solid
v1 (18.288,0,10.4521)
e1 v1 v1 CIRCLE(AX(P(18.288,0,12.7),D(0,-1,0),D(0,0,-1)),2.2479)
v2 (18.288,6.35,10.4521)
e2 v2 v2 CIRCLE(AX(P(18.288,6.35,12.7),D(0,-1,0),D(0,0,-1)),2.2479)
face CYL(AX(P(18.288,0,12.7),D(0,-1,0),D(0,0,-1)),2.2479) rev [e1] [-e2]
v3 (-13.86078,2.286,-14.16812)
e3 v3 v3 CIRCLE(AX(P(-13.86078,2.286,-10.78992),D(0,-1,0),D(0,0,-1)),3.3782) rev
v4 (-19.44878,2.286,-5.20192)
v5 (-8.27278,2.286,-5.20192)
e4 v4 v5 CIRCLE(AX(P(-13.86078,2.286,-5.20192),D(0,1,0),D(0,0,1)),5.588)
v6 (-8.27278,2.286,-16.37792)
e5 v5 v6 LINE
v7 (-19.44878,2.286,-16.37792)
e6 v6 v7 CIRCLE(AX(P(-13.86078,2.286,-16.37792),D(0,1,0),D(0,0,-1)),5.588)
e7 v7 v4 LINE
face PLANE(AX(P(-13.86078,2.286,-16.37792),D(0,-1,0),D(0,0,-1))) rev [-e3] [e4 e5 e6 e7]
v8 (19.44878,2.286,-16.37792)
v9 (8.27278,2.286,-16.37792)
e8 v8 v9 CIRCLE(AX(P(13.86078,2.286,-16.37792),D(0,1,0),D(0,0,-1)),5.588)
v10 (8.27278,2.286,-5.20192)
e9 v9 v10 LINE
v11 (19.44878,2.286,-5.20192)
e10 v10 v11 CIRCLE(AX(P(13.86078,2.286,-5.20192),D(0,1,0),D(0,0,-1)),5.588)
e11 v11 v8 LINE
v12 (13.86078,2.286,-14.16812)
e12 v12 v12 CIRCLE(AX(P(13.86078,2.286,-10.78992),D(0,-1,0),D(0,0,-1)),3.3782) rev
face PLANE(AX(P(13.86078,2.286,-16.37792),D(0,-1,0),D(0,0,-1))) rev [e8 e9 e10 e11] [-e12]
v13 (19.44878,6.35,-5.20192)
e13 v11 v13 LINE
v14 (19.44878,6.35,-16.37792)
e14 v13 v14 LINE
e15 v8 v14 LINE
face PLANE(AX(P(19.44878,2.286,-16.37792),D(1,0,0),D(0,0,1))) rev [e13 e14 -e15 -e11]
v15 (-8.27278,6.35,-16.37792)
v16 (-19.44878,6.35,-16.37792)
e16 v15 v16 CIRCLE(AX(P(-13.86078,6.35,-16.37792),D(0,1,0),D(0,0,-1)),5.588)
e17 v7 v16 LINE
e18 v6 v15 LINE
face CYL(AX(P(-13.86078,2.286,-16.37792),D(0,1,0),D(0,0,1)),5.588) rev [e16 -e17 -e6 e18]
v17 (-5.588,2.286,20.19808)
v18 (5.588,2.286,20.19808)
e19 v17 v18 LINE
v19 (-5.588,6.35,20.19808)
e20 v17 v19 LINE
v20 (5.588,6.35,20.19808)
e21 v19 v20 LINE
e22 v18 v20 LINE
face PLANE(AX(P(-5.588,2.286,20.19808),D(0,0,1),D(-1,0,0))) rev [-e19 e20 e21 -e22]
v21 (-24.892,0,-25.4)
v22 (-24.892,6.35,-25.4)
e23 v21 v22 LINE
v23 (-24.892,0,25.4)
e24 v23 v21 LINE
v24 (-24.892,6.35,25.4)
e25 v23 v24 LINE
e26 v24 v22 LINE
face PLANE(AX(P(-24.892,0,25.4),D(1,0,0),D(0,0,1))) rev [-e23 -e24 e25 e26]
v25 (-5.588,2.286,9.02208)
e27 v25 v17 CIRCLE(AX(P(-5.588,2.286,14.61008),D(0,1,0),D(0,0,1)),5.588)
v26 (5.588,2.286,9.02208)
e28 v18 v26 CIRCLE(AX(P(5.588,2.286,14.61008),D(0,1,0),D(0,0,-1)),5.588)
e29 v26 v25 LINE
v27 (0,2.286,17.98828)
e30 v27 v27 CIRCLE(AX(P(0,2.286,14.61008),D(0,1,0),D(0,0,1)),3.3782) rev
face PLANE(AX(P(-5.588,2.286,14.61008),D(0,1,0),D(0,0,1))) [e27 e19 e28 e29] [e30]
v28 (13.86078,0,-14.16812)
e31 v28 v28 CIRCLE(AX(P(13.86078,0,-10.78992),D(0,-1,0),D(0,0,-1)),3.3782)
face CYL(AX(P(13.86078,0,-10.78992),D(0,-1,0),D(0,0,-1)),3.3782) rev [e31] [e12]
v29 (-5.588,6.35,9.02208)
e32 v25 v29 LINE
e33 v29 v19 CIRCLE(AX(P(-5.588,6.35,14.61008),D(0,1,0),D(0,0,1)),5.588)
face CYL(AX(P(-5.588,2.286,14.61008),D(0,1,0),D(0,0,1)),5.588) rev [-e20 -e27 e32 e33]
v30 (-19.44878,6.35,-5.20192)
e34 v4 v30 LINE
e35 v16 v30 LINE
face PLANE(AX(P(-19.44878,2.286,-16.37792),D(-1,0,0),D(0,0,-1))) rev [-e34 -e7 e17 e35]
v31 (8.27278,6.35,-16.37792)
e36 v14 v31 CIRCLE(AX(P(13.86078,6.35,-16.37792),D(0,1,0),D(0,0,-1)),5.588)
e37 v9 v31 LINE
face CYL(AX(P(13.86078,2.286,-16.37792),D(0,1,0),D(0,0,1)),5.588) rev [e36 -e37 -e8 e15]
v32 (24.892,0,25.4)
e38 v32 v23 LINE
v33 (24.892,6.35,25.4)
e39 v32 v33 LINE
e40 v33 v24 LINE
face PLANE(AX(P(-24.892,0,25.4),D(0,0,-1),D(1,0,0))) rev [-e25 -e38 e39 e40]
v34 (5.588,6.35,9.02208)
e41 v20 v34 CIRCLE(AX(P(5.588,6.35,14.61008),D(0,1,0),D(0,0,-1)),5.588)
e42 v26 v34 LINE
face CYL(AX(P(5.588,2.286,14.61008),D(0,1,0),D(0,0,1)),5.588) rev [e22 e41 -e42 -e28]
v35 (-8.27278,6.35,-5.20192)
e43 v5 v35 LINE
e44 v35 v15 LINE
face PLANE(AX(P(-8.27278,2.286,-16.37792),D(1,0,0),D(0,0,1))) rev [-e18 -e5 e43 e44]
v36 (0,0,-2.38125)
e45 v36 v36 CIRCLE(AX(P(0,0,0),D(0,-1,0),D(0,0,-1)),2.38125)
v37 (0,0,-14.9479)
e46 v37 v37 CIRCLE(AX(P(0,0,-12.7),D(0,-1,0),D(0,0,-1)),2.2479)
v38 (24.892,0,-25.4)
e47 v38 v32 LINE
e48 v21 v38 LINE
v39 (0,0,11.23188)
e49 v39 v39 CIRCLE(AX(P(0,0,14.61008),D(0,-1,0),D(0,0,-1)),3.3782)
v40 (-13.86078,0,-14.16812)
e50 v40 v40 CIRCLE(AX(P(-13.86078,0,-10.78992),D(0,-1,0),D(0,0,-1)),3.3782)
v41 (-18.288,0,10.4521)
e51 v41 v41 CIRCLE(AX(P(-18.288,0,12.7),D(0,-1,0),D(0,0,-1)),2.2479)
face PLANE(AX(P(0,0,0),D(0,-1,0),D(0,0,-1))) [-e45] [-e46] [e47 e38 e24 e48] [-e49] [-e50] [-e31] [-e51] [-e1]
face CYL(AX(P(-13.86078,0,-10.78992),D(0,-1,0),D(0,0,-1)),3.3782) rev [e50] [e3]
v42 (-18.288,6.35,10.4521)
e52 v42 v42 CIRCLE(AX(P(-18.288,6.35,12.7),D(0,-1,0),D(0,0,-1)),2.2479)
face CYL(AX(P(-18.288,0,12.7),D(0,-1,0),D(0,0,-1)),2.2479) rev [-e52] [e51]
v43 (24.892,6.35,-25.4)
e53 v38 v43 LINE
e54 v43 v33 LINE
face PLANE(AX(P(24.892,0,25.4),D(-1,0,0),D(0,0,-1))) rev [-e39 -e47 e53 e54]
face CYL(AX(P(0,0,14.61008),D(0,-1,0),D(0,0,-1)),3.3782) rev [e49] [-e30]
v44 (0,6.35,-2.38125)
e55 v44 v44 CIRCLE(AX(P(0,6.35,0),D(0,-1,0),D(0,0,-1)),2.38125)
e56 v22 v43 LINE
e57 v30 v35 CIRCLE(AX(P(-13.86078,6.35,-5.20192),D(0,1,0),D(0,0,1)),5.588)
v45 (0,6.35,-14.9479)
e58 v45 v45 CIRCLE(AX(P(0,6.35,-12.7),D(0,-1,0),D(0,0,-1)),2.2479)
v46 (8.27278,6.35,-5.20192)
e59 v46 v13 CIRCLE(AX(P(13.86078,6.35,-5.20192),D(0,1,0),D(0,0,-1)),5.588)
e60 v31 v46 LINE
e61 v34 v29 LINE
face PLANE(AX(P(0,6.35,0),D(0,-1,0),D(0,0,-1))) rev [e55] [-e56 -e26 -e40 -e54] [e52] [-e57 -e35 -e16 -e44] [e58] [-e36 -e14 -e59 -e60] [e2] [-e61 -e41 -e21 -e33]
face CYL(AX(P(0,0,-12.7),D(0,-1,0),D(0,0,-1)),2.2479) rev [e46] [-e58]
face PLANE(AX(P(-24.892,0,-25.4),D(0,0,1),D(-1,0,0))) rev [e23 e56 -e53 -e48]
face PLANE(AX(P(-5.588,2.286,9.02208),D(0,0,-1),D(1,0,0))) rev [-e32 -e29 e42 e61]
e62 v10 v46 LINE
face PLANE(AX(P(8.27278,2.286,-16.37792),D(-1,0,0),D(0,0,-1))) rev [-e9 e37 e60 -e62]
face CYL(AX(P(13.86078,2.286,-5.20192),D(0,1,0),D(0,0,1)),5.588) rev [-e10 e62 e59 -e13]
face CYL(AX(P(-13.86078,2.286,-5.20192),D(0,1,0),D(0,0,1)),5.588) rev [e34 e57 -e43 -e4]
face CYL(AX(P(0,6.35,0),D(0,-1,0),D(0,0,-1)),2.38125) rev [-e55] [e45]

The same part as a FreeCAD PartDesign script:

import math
import FreeCAD as App
import Part
import Sketcher

V = App.Vector
Q = App.Units.Quantity

doc = App.newDocument("Part")
body = doc.addObject("PartDesign::Body", "Body")

# Sketch on XZ plane
sketch1 = body.newObject("Sketcher::SketchObject", "Sketch")
sketch1.AttachmentSupport = (doc.getObject("XZ_Plane"), [""])
sketch1.MapMode = "FlatFace"
sketch1.addGeometry(Part.LineSegment(V(-25, -25, 0), V(-25, 25, 0)), False)
sketch1.addGeometry(Part.LineSegment(V(-25, 25, 0), V(25, 25, 0)), False)
sketch1.addGeometry(Part.LineSegment(V(25, 25, 0), V(25, -25, 0)), False)
sketch1.addGeometry(Part.LineSegment(V(25, -25, 0), V(-25, -25, 0)), False)
sketch1.addConstraint(Sketcher.Constraint("Coincident", 0, 2, 1, 1))
sketch1.addConstraint(Sketcher.Constraint("Coincident", 1, 2, 2, 1))
sketch1.addConstraint(Sketcher.Constraint("Coincident", 2, 2, 3, 1))
sketch1.addConstraint(Sketcher.Constraint("Coincident", 3, 2, 0, 1))
sketch1.addConstraint(Sketcher.Constraint("Vertical", 0))
sketch1.addConstraint(Sketcher.Constraint("Horizontal", 1))
sketch1.addConstraint(Sketcher.Constraint("Vertical", 2))
sketch1.addConstraint(Sketcher.Constraint("Horizontal", 3))
sketch1.addConstraint(Sketcher.Constraint("Symmetric", 0, 2, 2, 2, -1, 1))
sketch1.addConstraint(Sketcher.Constraint("DistanceY", 0, 1, 0, 2, Q("2 in")))
sketch1.addConstraint(Sketcher.Constraint("DistanceX", 1, 1, 1, 2, Q("1.96 in")))
pad1 = body.newObject("PartDesign::Pad", "Pad")
pad1.Profile = sketch1
pad1.Length = Q("0.25 in")
pad1.Reversed = True

# Sketch on XZ plane
sketch2 = body.newObject("Sketcher::SketchObject", "Sketch001")
sketch2.AttachmentSupport = (doc.getObject("XZ_Plane"), [""])
sketch2.MapMode = "FlatFace"
sketch2.AttachmentOffset = App.Placement(V(0, 0, -0.25 * 25.4), App.Rotation())
sketch2.addGeometry(Part.Circle(V(-18.3, -12.7, 0), V(0, 0, 1), 2.2), False)
sketch2.addGeometry(Part.Circle(V(18.3, -12.7, 0), V(0, 0, 1), 2.2), False)
sketch2.addGeometry(Part.Circle(V(0, 12.7, 0), V(0, 0, 1), 2.2), False)
sketch2.addConstraint(Sketcher.Constraint("Equal", 0, 1))
sketch2.addConstraint(Sketcher.Constraint("Equal", 1, 2))
sketch2.addConstraint(Sketcher.Constraint("Symmetric", 0, 3, 1, 3, -2))
sketch2.addConstraint(Sketcher.Constraint("PointOnObject", 2, 3, -2))
sketch2.addConstraint(Sketcher.Constraint("Diameter", 0, Q("0.177 in")))
sketch2.addConstraint(Sketcher.Constraint("DistanceY", 0, 3, 2, 3, Q("1 in")))
sketch2.addConstraint(Sketcher.Constraint("DistanceY", 0, 3, -1, 1, Q("0.5 in")))
sketch2.addConstraint(Sketcher.Constraint("DistanceX", 0, 3, -1, 1, Q("0.72 in")))
doc.recompute()
hole = body.newObject("PartDesign::Hole", "Hole")
hole.Profile = sketch2
hole.ThreadType = "None"
hole.Diameter = Q("0.177 in")
hole.DepthType = "ThroughAll"
hole.Reversed = True

# Sketch on XZ plane
sketch3 = body.newObject("Sketcher::SketchObject", "Sketch002")
sketch3.AttachmentSupport = (doc.getObject("XZ_Plane"), [""])
sketch3.MapMode = "FlatFace"
sketch3.AttachmentOffset = App.Placement(V(0, 0, -0.25 * 25.4), App.Rotation())
sketch3.addGeometry(Part.Circle(V(0, -14.6, 0), V(0, 0, 1), 3.4), False)
sketch3.addGeometry(Part.Circle(V(-13.9, 10.8, 0), V(0, 0, 1), 3.4), False)
sketch3.addGeometry(Part.Circle(V(13.9, 10.8, 0), V(0, 0, 1), 3.4), False)
sketch3.addConstraint(Sketcher.Constraint("Equal", 0, 1))
sketch3.addConstraint(Sketcher.Constraint("Equal", 1, 2))
sketch3.addConstraint(Sketcher.Constraint("Symmetric", 1, 3, 2, 3, -2))
sketch3.addConstraint(Sketcher.Constraint("PointOnObject", 0, 3, -2))
sketch3.addConstraint(Sketcher.Constraint("Diameter", 0, Q("0.266 in")))
sketch3.addConstraint(Sketcher.Constraint("DistanceY", 0, 3, 1, 3, Q("1 in")))
sketch3.addConstraint(Sketcher.Constraint("DistanceY", 0, 3, -1, 1, Q("0.5752 in")))
sketch3.addConstraint(Sketcher.Constraint("DistanceX", 1, 3, -1, 1, Q("0.5457 in")))
doc.recompute()
hole2 = body.newObject("PartDesign::Hole", "Hole001")
hole2.Profile = sketch3
hole2.ThreadType = "None"
hole2.Diameter = Q("0.266 in")
hole2.DepthType = "ThroughAll"
hole2.Reversed = True

# Sketch on XZ plane
sketch4 = body.newObject("Sketcher::SketchObject", "Sketch003")
sketch4.AttachmentSupport = (doc.getObject("XZ_Plane"), [""])
sketch4.MapMode = "FlatFace"
sketch4.addGeometry(Part.LineSegment(V(-19, 16, 0), V(-19, 5, 0)), False)
sketch4.addGeometry(Part.ArcOfCircle(Part.Circle(V(-14, 5, 0), V(0, 0, 1), 6), math.radians(180), math.radians(360)), False)
sketch4.addGeometry(Part.LineSegment(V(-8, 5, 0), V(-8, 16, 0)), False)
sketch4.addGeometry(Part.ArcOfCircle(Part.Circle(V(-14, 16, 0), V(0, 0, 1), 6), math.radians(0), math.radians(180)), False)
sketch4.addGeometry(Part.LineSegment(V(8, 16, 0), V(8, 5, 0)), False)
sketch4.addGeometry(Part.ArcOfCircle(Part.Circle(V(14, 5, 0), V(0, 0, 1), 6), math.radians(180), math.radians(360)), False)
sketch4.addGeometry(Part.LineSegment(V(19, 5, 0), V(19, 16, 0)), False)
sketch4.addGeometry(Part.ArcOfCircle(Part.Circle(V(14, 16, 0), V(0, 0, 1), 6), math.radians(0), math.radians(180)), False)
sketch4.addGeometry(Part.LineSegment(V(6, -9, 0), V(-6, -9, 0)), False)
sketch4.addGeometry(Part.ArcOfCircle(Part.Circle(V(-6, -15, 0), V(0, 0, 1), 6), math.radians(90), math.radians(270)), False)
sketch4.addGeometry(Part.LineSegment(V(-6, -20, 0), V(6, -20, 0)), False)
sketch4.addGeometry(Part.ArcOfCircle(Part.Circle(V(6, -15, 0), V(0, 0, 1), 6), math.radians(-90), math.radians(90)), False)
sketch4.addConstraint(Sketcher.Constraint("Tangent", 0, 2, 1, 1))
sketch4.addConstraint(Sketcher.Constraint("Tangent", 1, 2, 2, 1))
sketch4.addConstraint(Sketcher.Constraint("Tangent", 2, 2, 3, 1))
sketch4.addConstraint(Sketcher.Constraint("Tangent", 3, 2, 0, 1))
sketch4.addConstraint(Sketcher.Constraint("Tangent", 4, 2, 5, 1))
sketch4.addConstraint(Sketcher.Constraint("Tangent", 5, 2, 6, 1))
sketch4.addConstraint(Sketcher.Constraint("Tangent", 6, 2, 7, 1))
sketch4.addConstraint(Sketcher.Constraint("Tangent", 7, 2, 4, 1))
sketch4.addConstraint(Sketcher.Constraint("Tangent", 8, 2, 9, 1))
sketch4.addConstraint(Sketcher.Constraint("Tangent", 9, 2, 10, 1))
sketch4.addConstraint(Sketcher.Constraint("Tangent", 10, 2, 11, 1))
sketch4.addConstraint(Sketcher.Constraint("Tangent", 11, 2, 8, 1))
sketch4.addConstraint(Sketcher.Constraint("Vertical", 0))
sketch4.addConstraint(Sketcher.Constraint("Vertical", 2))
sketch4.addConstraint(Sketcher.Constraint("Vertical", 4))
sketch4.addConstraint(Sketcher.Constraint("Vertical", 6))
sketch4.addConstraint(Sketcher.Constraint("Horizontal", 8))
sketch4.addConstraint(Sketcher.Constraint("Horizontal", 10))
sketch4.addConstraint(Sketcher.Constraint("Equal", 3, 5))
sketch4.addConstraint(Sketcher.Constraint("Equal", 7, 9))
sketch4.addConstraint(Sketcher.Constraint("Symmetric", 1, 3, 5, 3, -2))
sketch4.addConstraint(Sketcher.Constraint("Horizontal", 3, 3, 7, 3))
sketch4.addConstraint(Sketcher.Constraint("Equal", 10, 0))
sketch4.addConstraint(Sketcher.Constraint("Radius", 1, Q("0.22 in")))
sketch4.addConstraint(Sketcher.Constraint("DistanceY", 9, 2, 1, 2, Q("1 in")))
sketch4.addConstraint(Sketcher.Constraint("DistanceX", 8, 2, 8, 1, Q("0.44 in")))
sketch4.addConstraint(Sketcher.Constraint("DistanceX", 9, 3, -1, 1, Q("0.22 in")))
sketch4.addConstraint(Sketcher.Constraint("DistanceX", 1, 3, -1, 1, Q("0.5457 in")))
sketch4.addConstraint(Sketcher.Constraint("DistanceY", -1, 1, 1, 3, Q("0.2048 in")))
pocket1 = body.newObject("PartDesign::Pocket", "Pocket")
pocket1.Profile = sketch4
pocket1.Length = Q("0.16 in")

# Sketch on XZ plane
sketch5 = body.newObject("Sketcher::SketchObject", "Sketch004")
sketch5.AttachmentSupport = (doc.getObject("XZ_Plane"), [""])
sketch5.MapMode = "FlatFace"
sketch5.AttachmentOffset = App.Placement(V(0, 0, -0.25 * 25.4), App.Rotation())
sketch5.addGeometry(Part.Circle(V(0, 0, 0), V(0, 0, 1), 2.4), False)
sketch5.addConstraint(Sketcher.Constraint("Coincident", 0, 3, -1, 1))
sketch5.addConstraint(Sketcher.Constraint("Diameter", 0, Q("0.1875 in")))
pocket2 = body.newObject("PartDesign::Pocket", "Pocket001")
pocket2.Profile = sketch5
pocket2.Type = "ThroughAll"
pocket2.Reversed = True
body2 = doc.addObject("PartDesign::Body", "Body001")
doc.recompute()

body.Placement = App.Placement(V(0, 6.35, 0), App.Rotation(V(1, 0, 0), 180))
boolean = body2.newObject("PartDesign::Boolean", "Boolean")
boolean.Type = "Fuse"
boolean.addObjects([body])

doc.recompute()
